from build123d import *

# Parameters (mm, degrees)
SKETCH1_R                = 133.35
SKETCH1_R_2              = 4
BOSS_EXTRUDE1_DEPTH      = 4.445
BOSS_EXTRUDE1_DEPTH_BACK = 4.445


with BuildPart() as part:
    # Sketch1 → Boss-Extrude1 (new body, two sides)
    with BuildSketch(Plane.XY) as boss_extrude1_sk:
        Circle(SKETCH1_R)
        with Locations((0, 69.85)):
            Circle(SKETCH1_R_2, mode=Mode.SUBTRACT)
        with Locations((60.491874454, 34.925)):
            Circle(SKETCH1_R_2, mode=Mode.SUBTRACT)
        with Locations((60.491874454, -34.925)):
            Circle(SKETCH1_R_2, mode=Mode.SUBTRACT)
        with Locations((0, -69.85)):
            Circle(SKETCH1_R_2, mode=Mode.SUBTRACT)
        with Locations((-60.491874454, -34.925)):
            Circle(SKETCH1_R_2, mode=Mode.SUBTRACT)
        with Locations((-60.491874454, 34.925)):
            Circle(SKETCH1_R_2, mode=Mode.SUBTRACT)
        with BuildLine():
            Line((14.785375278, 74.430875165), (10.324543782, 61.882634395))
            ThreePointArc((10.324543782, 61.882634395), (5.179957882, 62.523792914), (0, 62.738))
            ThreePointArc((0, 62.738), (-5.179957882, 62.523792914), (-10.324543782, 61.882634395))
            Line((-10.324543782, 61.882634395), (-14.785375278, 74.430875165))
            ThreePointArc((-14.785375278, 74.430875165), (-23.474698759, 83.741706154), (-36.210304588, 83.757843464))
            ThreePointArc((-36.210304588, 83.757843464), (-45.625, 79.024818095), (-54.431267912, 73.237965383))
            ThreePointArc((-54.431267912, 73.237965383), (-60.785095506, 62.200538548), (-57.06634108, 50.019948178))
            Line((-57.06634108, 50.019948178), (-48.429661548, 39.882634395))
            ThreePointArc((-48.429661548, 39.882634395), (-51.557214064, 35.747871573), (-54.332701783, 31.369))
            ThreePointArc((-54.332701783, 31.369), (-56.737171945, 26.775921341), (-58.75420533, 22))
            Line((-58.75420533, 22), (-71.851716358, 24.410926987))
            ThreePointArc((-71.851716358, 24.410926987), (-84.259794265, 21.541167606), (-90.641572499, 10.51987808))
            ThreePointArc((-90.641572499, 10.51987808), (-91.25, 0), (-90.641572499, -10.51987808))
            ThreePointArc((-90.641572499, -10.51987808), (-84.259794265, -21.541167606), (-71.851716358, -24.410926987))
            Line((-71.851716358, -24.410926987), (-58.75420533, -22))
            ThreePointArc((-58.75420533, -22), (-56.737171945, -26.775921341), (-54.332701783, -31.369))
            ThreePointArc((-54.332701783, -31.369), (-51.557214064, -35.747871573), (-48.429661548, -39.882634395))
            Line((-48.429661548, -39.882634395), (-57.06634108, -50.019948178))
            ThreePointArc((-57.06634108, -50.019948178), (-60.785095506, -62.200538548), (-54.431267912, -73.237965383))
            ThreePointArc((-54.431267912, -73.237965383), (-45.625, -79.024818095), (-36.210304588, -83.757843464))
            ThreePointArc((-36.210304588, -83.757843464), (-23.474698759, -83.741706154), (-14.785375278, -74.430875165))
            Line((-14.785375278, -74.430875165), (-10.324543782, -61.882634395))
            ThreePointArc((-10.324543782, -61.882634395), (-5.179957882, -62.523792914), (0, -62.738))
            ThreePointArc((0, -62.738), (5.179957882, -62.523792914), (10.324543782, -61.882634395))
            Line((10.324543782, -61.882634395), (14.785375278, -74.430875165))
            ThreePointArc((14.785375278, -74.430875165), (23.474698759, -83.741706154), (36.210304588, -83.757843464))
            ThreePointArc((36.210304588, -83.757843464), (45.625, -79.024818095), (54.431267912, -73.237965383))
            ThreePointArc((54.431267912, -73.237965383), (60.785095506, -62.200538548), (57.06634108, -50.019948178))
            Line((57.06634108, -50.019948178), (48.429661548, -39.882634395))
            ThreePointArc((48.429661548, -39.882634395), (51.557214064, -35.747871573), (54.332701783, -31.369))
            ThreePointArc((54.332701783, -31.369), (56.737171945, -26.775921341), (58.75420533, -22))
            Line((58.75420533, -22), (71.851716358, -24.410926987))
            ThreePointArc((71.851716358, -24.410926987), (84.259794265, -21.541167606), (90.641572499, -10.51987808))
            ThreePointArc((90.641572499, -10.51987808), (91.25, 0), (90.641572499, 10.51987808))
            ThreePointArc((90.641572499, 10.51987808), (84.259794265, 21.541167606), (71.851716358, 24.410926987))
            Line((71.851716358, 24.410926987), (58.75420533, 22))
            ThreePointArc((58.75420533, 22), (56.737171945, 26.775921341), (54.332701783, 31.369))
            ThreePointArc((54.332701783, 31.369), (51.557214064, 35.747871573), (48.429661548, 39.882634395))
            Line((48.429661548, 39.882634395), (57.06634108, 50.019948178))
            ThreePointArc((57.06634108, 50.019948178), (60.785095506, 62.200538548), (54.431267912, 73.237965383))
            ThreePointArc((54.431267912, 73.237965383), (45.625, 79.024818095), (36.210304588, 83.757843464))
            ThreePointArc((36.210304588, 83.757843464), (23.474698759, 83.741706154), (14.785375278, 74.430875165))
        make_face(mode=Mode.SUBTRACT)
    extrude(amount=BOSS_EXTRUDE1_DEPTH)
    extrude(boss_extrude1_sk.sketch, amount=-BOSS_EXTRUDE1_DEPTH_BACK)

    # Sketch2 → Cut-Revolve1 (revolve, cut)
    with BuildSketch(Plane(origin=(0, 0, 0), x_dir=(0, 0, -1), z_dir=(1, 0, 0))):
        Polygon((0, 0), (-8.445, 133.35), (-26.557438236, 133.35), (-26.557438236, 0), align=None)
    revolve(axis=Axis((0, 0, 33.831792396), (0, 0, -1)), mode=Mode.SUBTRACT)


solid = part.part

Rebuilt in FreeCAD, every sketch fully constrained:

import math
import FreeCAD as App
import Part
import Sketcher
Q = App.Units.Quantity


def add_polygon(sketch, points):
    """Adds a closed chain of lines whose ends are joined by coincident constraints."""
    first, n = sketch.GeometryCount, len(points)
    for a, b in zip(points, points[1:] + points[:1]):
        sketch.addGeometry(Part.LineSegment(App.Vector(*a, 0), App.Vector(*b, 0)), False)
    for i in range(n):
        sketch.addConstraint(Sketcher.Constraint("Coincident", first + i, 2, first + (i + 1) % n, 1))

doc = App.newDocument("Part")
params = doc.addObject("Spreadsheet::Sheet", "Params")
for row, (alias, value) in enumerate([
    ("sketch1_diameter", "10.5 in"),
    ("sketch1_radius", "2.47 in"),
    ("pad1_length", "0.175 in"),
    ("pad1_length2", "0.175 in"),
    ("sketch2_width", "5.25 in"),
    ("groove_angle", "360 deg"),
], start=1):
    params.set(f"A{row}", alias)
    params.set(f"B{row}", "=" + value)
    params.setAlias(f"B{row}", alias)

body = doc.addObject("PartDesign::Body", "Body")

sketch1 = body.newObject("Sketcher::SketchObject", "Sketch")
sketch1.AttachmentSupport = (doc.getObject("XY_Plane"), [""])
sketch1.MapMode = "FlatFace"
sketch1.addGeometry(Part.Circle(App.Vector(0, 0, 0), App.Vector(0, 0, 1), 133.3), False)
sketch1.addGeometry(Part.Circle(App.Vector(-60.5, -34.9, 0), App.Vector(0, 0, 1), 4), False)
sketch1.addGeometry(Part.Circle(App.Vector(0, -69.8, 0), App.Vector(0, 0, 1), 4), False)
sketch1.addGeometry(Part.Circle(App.Vector(60.5, -34.9, 0), App.Vector(0, 0, 1), 4), False)
sketch1.addGeometry(Part.Circle(App.Vector(-60.5, 34.9, 0), App.Vector(0, 0, 1), 4), False)
sketch1.addGeometry(Part.LineSegment(App.Vector(10.3, 61.9, 0), App.Vector(14.8, 74.4, 0)), False)
sketch1.addGeometry(Part.ArcOfCircle(Part.Circle(App.Vector(29.9, 69.1, 0), App.Vector(0, 0, 1), 16), math.radians(67), math.radians(160)), False)
sketch1.addGeometry(Part.ArcOfCircle(Part.Circle(App.Vector(0, 0, 0), App.Vector(0, 0, 1), 91.3), math.radians(53.38), math.radians(66.62)), False)
sketch1.addGeometry(Part.ArcOfCircle(Part.Circle(App.Vector(44.9, 60.4, 0), App.Vector(0, 0, 1), 16), math.radians(-40), math.radians(53)), False)
sketch1.addGeometry(Part.LineSegment(App.Vector(57.1, 50, 0), App.Vector(48.4, 39.9, 0)), False)
sketch1.addGeometry(Part.ArcOfCircle(Part.Circle(App.Vector(0, 0, 0), App.Vector(0, 0, 1), 62.7), math.radians(30), math.radians(39.47)), False)
sketch1.addGeometry(Part.ArcOfCircle(Part.Circle(App.Vector(0, 0, 0), App.Vector(0, 0, 1), 62.7), math.radians(20.53), math.radians(30)), False)
sketch1.addGeometry(Part.LineSegment(App.Vector(58.8, 22, 0), App.Vector(71.9, 24.4, 0)), False)
sketch1.addGeometry(Part.ArcOfCircle(Part.Circle(App.Vector(74.7, 8.7, 0), App.Vector(0, 0, 1), 16), math.radians(7), math.radians(100)), False)
sketch1.addGeometry(Part.ArcOfCircle(Part.Circle(App.Vector(0, 0, 0), App.Vector(0, 0, 1), 91.2), math.radians(-6.62), math.radians(6.62)), False)
sketch1.addGeometry(Part.ArcOfCircle(Part.Circle(App.Vector(74.7, -8.7, 0), App.Vector(0, 0, 1), 16), math.radians(-100), math.radians(-7)), False)
sketch1.addGeometry(Part.LineSegment(App.Vector(71.9, -24.4, 0), App.Vector(58.8, -22, 0)), False)
sketch1.addGeometry(Part.ArcOfCircle(Part.Circle(App.Vector(0, 0, 0), App.Vector(0, 0, 1), 62.7), math.radians(-30), math.radians(-20.53)), False)
sketch1.addGeometry(Part.ArcOfCircle(Part.Circle(App.Vector(0, 0, 0), App.Vector(0, 0, 1), 62.7), math.radians(-39.47), math.radians(-30)), False)
sketch1.addGeometry(Part.LineSegment(App.Vector(48.4, -39.9, 0), App.Vector(57.1, -50, 0)), False)
sketch1.addGeometry(Part.ArcOfCircle(Part.Circle(App.Vector(44.9, -60.4, 0), App.Vector(0, 0, 1), 16), math.radians(-53), math.radians(40)), False)
sketch1.addGeometry(Part.ArcOfCircle(Part.Circle(App.Vector(0, 0, 0), App.Vector(0, 0, 1), 91.3), math.radians(-66.62), math.radians(-53.38)), False)
sketch1.addGeometry(Part.ArcOfCircle(Part.Circle(App.Vector(29.9, -69.1, 0), App.Vector(0, 0, 1), 16), math.radians(-160), math.radians(-67)), False)
sketch1.addGeometry(Part.LineSegment(App.Vector(14.8, -74.4, 0), App.Vector(10.3, -61.9, 0)), False)
sketch1.addGeometry(Part.ArcOfCircle(Part.Circle(App.Vector(0, 0, 0), App.Vector(0, 0, 1), 62.7), math.radians(-90), math.radians(-80.53)), False)
sketch1.addGeometry(Part.ArcOfCircle(Part.Circle(App.Vector(0, 0, 0), App.Vector(0, 0, 1), 62.7), math.radians(-99.47), math.radians(-90)), False)
sketch1.addGeometry(Part.LineSegment(App.Vector(-10.3, -61.9, 0), App.Vector(-14.8, -74.4, 0)), False)
sketch1.addGeometry(Part.ArcOfCircle(Part.Circle(App.Vector(-29.9, -69.1, 0), App.Vector(0, 0, 1), 16), math.radians(-113), math.radians(-20)), False)
sketch1.addGeometry(Part.ArcOfCircle(Part.Circle(App.Vector(0, 0, 0), App.Vector(0, 0, 1), 91.3), math.radians(-126.62), math.radians(-113.38)), False)
sketch1.addGeometry(Part.ArcOfCircle(Part.Circle(App.Vector(-44.9, -60.4, 0), App.Vector(0, 0, 1), 16), math.radians(140), math.radians(233)), False)
sketch1.addGeometry(Part.LineSegment(App.Vector(-57.1, -50, 0), App.Vector(-48.4, -39.9, 0)), False)
sketch1.addGeometry(Part.ArcOfCircle(Part.Circle(App.Vector(0, 0, 0), App.Vector(0, 0, 1), 62.7), math.radians(-150), math.radians(-140.53)), False)
sketch1.addGeometry(Part.ArcOfCircle(Part.Circle(App.Vector(0, 0, 0), App.Vector(0, 0, 1), 62.7), math.radians(-159.47), math.radians(-150)), False)
sketch1.addGeometry(Part.LineSegment(App.Vector(-58.8, -22, 0), App.Vector(-71.9, -24.4, 0)), False)
sketch1.addGeometry(Part.ArcOfCircle(Part.Circle(App.Vector(-74.7, -8.7, 0), App.Vector(0, 0, 1), 16), math.radians(-173), math.radians(-80)), False)
sketch1.addGeometry(Part.ArcOfCircle(Part.Circle(App.Vector(0, 0, 0), App.Vector(0, 0, 1), 91.2), math.radians(173.38), math.radians(186.62)), False)
sketch1.addGeometry(Part.ArcOfCircle(Part.Circle(App.Vector(-74.7, 8.7, 0), App.Vector(0, 0, 1), 16), math.radians(80), math.radians(173)), False)
sketch1.addGeometry(Part.LineSegment(App.Vector(-71.9, 24.4, 0), App.Vector(-58.8, 22, 0)), False)
sketch1.addGeometry(Part.ArcOfCircle(Part.Circle(App.Vector(0, 0, 0), App.Vector(0, 0, 1), 62.7), math.radians(150), math.radians(159.47)), False)
sketch1.addGeometry(Part.ArcOfCircle(Part.Circle(App.Vector(0, 0, 0), App.Vector(0, 0, 1), 62.7), math.radians(140.53), math.radians(150)), False)
sketch1.addGeometry(Part.LineSegment(App.Vector(-48.4, 39.9, 0), App.Vector(-57.1, 50, 0)), False)
sketch1.addGeometry(Part.ArcOfCircle(Part.Circle(App.Vector(-44.9, 60.4, 0), App.Vector(0, 0, 1), 16), math.radians(127), math.radians(220)), False)
sketch1.addGeometry(Part.ArcOfCircle(Part.Circle(App.Vector(0, 0, 0), App.Vector(0, 0, 1), 91.3), math.radians(113.38), math.radians(126.62)), False)
sketch1.addGeometry(Part.ArcOfCircle(Part.Circle(App.Vector(-29.9, 69.1, 0), App.Vector(0, 0, 1), 16), math.radians(20), math.radians(113)), False)
sketch1.addGeometry(Part.LineSegment(App.Vector(-14.8, 74.4, 0), App.Vector(-10.3, 61.9, 0)), False)
sketch1.addGeometry(Part.ArcOfCircle(Part.Circle(App.Vector(0, 0, 0), App.Vector(0, 0, 1), 62.7), math.radians(90), math.radians(99.47)), False)
sketch1.addGeometry(Part.ArcOfCircle(Part.Circle(App.Vector(0, 0, 0), App.Vector(0, 0, 1), 62.7), math.radians(80.53), math.radians(90)), False)
sketch1.addGeometry(Part.Circle(App.Vector(60.5, 34.9, 0), App.Vector(0, 0, 1), 4), False)
sketch1.addGeometry(Part.Circle(App.Vector(0, 69.8, 0), App.Vector(0, 0, 1), 4), False)
sketch1.addConstraint(Sketcher.Constraint("Tangent", 5, 2, 6, 2))
sketch1.addConstraint(Sketcher.Constraint("Tangent", 6, 1, 7, 2))
sketch1.addConstraint(Sketcher.Constraint("Tangent", 7, 1, 8, 2))
sketch1.addConstraint(Sketcher.Constraint("Tangent", 8, 1, 9, 1))
sketch1.addConstraint(Sketcher.Constraint("Coincident", 9, 2, 10, 2))
sketch1.addConstraint(Sketcher.Constraint("Tangent", 10, 1, 11, 2))
sketch1.addConstraint(Sketcher.Constraint("Coincident", 11, 1, 12, 1))
sketch1.addConstraint(Sketcher.Constraint("Tangent", 12, 2, 13, 2))
sketch1.addConstraint(Sketcher.Constraint("Tangent", 13, 1, 14, 2))
sketch1.addConstraint(Sketcher.Constraint("Tangent", 14, 1, 15, 2))
sketch1.addConstraint(Sketcher.Constraint("Tangent", 15, 1, 16, 1))
sketch1.addConstraint(Sketcher.Constraint("Coincident", 16, 2, 17, 2))
sketch1.addConstraint(Sketcher.Constraint("Tangent", 17, 1, 18, 2))
sketch1.addConstraint(Sketcher.Constraint("Coincident", 18, 1, 19, 1))
sketch1.addConstraint(Sketcher.Constraint("Tangent", 19, 2, 20, 2))
sketch1.addConstraint(Sketcher.Constraint("Tangent", 20, 1, 21, 2))
sketch1.addConstraint(Sketcher.Constraint("Tangent", 21, 1, 22, 2))
sketch1.addConstraint(Sketcher.Constraint("Tangent", 22, 1, 23, 1))
sketch1.addConstraint(Sketcher.Constraint("Coincident", 23, 2, 24, 2))
sketch1.addConstraint(Sketcher.Constraint("Tangent", 24, 1, 25, 2))
sketch1.addConstraint(Sketcher.Constraint("Coincident", 25, 1, 26, 1))
sketch1.addConstraint(Sketcher.Constraint("Tangent", 26, 2, 27, 2))
sketch1.addConstraint(Sketcher.Constraint("Tangent", 27, 1, 28, 2))
sketch1.addConstraint(Sketcher.Constraint("Tangent", 28, 1, 29, 2))
sketch1.addConstraint(Sketcher.Constraint("Tangent", 29, 1, 30, 1))
sketch1.addConstraint(Sketcher.Constraint("Coincident", 30, 2, 31, 2))
sketch1.addConstraint(Sketcher.Constraint("Tangent", 31, 1, 32, 2))
sketch1.addConstraint(Sketcher.Constraint("Coincident", 32, 1, 33, 1))
sketch1.addConstraint(Sketcher.Constraint("Tangent", 33, 2, 34, 2))
sketch1.addConstraint(Sketcher.Constraint("Tangent", 34, 1, 35, 2))
sketch1.addConstraint(Sketcher.Constraint("Tangent", 35, 1, 36, 2))
sketch1.addConstraint(Sketcher.Constraint("Tangent", 36, 1, 37, 1))
sketch1.addConstraint(Sketcher.Constraint("Coincident", 37, 2, 38, 2))
sketch1.addConstraint(Sketcher.Constraint("Tangent", 38, 1, 39, 2))
sketch1.addConstraint(Sketcher.Constraint("Coincident", 39, 1, 40, 1))
sketch1.addConstraint(Sketcher.Constraint("Tangent", 40, 2, 41, 2))
sketch1.addConstraint(Sketcher.Constraint("Tangent", 41, 1, 42, 2))
sketch1.addConstraint(Sketcher.Constraint("Tangent", 42, 1, 43, 2))
sketch1.addConstraint(Sketcher.Constraint("Tangent", 43, 1, 44, 1))
sketch1.addConstraint(Sketcher.Constraint("Coincident", 44, 2, 45, 2))
sketch1.addConstraint(Sketcher.Constraint("Tangent", 45, 1, 46, 2))
sketch1.addConstraint(Sketcher.Constraint("Coincident", 46, 1, 5, 1))
sketch1.addConstraint(Sketcher.Constraint("Coincident", 0, 3, -1, 1))
sketch1.addConstraint(Sketcher.Constraint("Coincident", 7, 3, -1, 1))
sketch1.addConstraint(Sketcher.Constraint("Coincident", 10, 3, -1, 1))
sketch1.addConstraint(Sketcher.Constraint("Coincident", 14, 3, -1, 1))
sketch1.addConstraint(Sketcher.Constraint("Coincident", 17, 3, -1, 1))
sketch1.addConstraint(Sketcher.Constraint("Coincident", 21, 3, -1, 1))
sketch1.addConstraint(Sketcher.Constraint("Coincident", 24, 3, -1, 1))
sketch1.addConstraint(Sketcher.Constraint("Coincident", 28, 3, -1, 1))
sketch1.addConstraint(Sketcher.Constraint("Coincident", 31, 3, -1, 1))
sketch1.addConstraint(Sketcher.Constraint("Coincident", 35, 3, -1, 1))
sketch1.addConstraint(Sketcher.Constraint("Coincident", 38, 3, -1, 1))
sketch1.addConstraint(Sketcher.Constraint("Coincident", 42, 3, -1, 1))
sketch1.addConstraint(Sketcher.Constraint("Coincident", 45, 3, -1, 1))
sketch1.addConstraint(Sketcher.Constraint("Equal", 1, 2))
sketch1.addConstraint(Sketcher.Constraint("Equal", 2, 3))
sketch1.addConstraint(Sketcher.Constraint("Equal", 3, 4))
sketch1.addConstraint(Sketcher.Constraint("Equal", 6, 8))
sketch1.addConstraint(Sketcher.Constraint("Equal", 10, 11))
sketch1.addConstraint(Sketcher.Constraint("Equal", 8, 13))
sketch1.addConstraint(Sketcher.Constraint("Equal", 7, 14))
sketch1.addConstraint(Sketcher.Constraint("Equal", 13, 15))
sketch1.addConstraint(Sketcher.Constraint("Equal", 11, 17))
sketch1.addConstraint(Sketcher.Constraint("Equal", 17, 18))
sketch1.addConstraint(Sketcher.Constraint("Equal", 15, 20))
sketch1.addConstraint(Sketcher.Constraint("Equal", 14, 21))
sketch1.addConstraint(Sketcher.Constraint("Equal", 20, 22))
sketch1.addConstraint(Sketcher.Constraint("Equal", 18, 24))
sketch1.addConstraint(Sketcher.Constraint("Equal", 24, 25))
sketch1.addConstraint(Sketcher.Constraint("Equal", 22, 27))
sketch1.addConstraint(Sketcher.Constraint("Equal", 21, 28))
sketch1.addConstraint(Sketcher.Constraint("Equal", 27, 29))
sketch1.addConstraint(Sketcher.Constraint("Equal", 25, 31))
sketch1.addConstraint(Sketcher.Constraint("Equal", 31, 32))
sketch1.addConstraint(Sketcher.Constraint("Equal", 29, 34))
sketch1.addConstraint(Sketcher.Constraint("Equal", 28, 35))
sketch1.addConstraint(Sketcher.Constraint("Equal", 34, 36))
sketch1.addConstraint(Sketcher.Constraint("Equal", 32, 38))
sketch1.addConstraint(Sketcher.Constraint("Equal", 38, 39))
sketch1.addConstraint(Sketcher.Constraint("Equal", 36, 41))
sketch1.addConstraint(Sketcher.Constraint("Equal", 35, 42))
sketch1.addConstraint(Sketcher.Constraint("Equal", 41, 43))
sketch1.addConstraint(Sketcher.Constraint("Equal", 39, 45))
sketch1.addConstraint(Sketcher.Constraint("Equal", 45, 46))
sketch1.addConstraint(Sketcher.Constraint("Equal", 4, 47))
sketch1.addConstraint(Sketcher.Constraint("Equal", 47, 48))
sketch1.addConstraint(Sketcher.Constraint("Symmetric", 3, 3, 4, 3, -1, 1))
sketch1.addConstraint(Sketcher.Constraint("Symmetric", 1, 3, 47, 3, -1, 1))
sketch1.addConstraint(Sketcher.Constraint("Symmetric", 2, 3, 48, 3, -1, 1))
sketch1.addConstraint(Sketcher.Constraint("Symmetric", 5, 2, 26, 2, -1, 1))
sketch1.addConstraint(Sketcher.Constraint("Symmetric", 8, 1, 29, 1, -1, 1))
sketch1.addConstraint(Sketcher.Constraint("Symmetric", 12, 2, 33, 2, -1, 1))
sketch1.addConstraint(Sketcher.Constraint("Symmetric", 15, 1, 36, 1, -1, 1))
sketch1.addConstraint(Sketcher.Constraint("Symmetric", 19, 2, 40, 2, -1, 1))
sketch1.addConstraint(Sketcher.Constraint("Symmetric", 22, 1, 43, 1, -1, 1))
sketch1.addConstraint(Sketcher.Constraint("Symmetric", 1, 3, 3, 3, -2))
sketch1.addConstraint(Sketcher.Constraint("Symmetric", 22, 1, 26, 2, -2))
sketch1.addConstraint(Sketcher.Constraint("Symmetric", 19, 2, 29, 1, -2))
sketch1.addConstraint(Sketcher.Constraint("Symmetric", 15, 1, 33, 2, -2))
sketch1.addConstraint(Sketcher.Constraint("PointOnObject", 2, 3, -2))
sketch1.addConstraint(Sketcher.Constraint("PointOnObject", 24, 1, -2))
sketch1.addConstraint(Sketcher.Constraint("PointOnObject", 45, 1, -2))
sketch1.addConstraint(Sketcher.Constraint("Horizontal", 17, 1, 31, 1))
sketch1.addConstraint(Sketcher.Constraint("Horizontal", 10, 1, 38, 1))
sketch1.addConstraint(Sketcher.Constraint("Vertical", 10, 1, 17, 1))
sketch1.addConstraint(Sketcher.Constraint("Equal", 5, 9))
sketch1.addConstraint(Sketcher.Constraint("Equal", 9, 12))
sketch1.addConstraint(Sketcher.Constraint("Diameter", 0, Q("10.5 in")))
sketch1.addConstraint(Sketcher.Constraint("Radius", 10, Q("2.47 in")))
sketch1.addConstraint(Sketcher.Constraint("Diameter", 1, Q("8 mm")))
sketch1.addConstraint(Sketcher.Constraint("DistanceY", 2, 3, -1, 1, Q("2.75 in")))
sketch1.addConstraint(Sketcher.Constraint("Radius", 6, Q("16 mm")))
sketch1.addConstraint(Sketcher.Constraint("Radius", 7, Q("91.25 mm")))
sketch1.addConstraint(Sketcher.Constraint("DistanceY", 1, 3, -1, 1, Q("1.375 in")))
sketch1.addConstraint(Sketcher.Constraint("DistanceY", -1, 1, 10, 1, Q("1.235 in")))
sketch1.addConstraint(Sketcher.Constraint("DistanceX", -1, 1, 6, 3, Q("29.8611 mm")))
sketch1.addConstraint(Sketcher.Constraint("DistanceY", -1, 1, 11, 1, Q("22 mm")))
sketch1.addConstraint(Sketcher.Constraint("Distance", 5, Q("13.317558 mm")))
sketch1.addConstraint(Sketcher.Constraint("DistanceY", -1, 1, 8, 3, Q("60.39624 mm")))
sketch1.addConstraint(Sketcher.Constraint("DistanceX", 1, 3, -1, 1, Q("60.491874 mm")))
sketch1.setExpression("Constraints[108]", "Params.sketch1_diameter")
sketch1.setExpression("Constraints[109]", "Params.sketch1_radius")
pad1 = body.newObject("PartDesign::Pad", "Pad")
pad1.Profile = sketch1
pad1.Type = "TwoLengths"
pad1.setExpression("Length", "Params.pad1_length")
pad1.setExpression("Length2", "Params.pad1_length2")

sketch2 = body.newObject("Sketcher::SketchObject", "Sketch001")
sketch2.AttachmentSupport = (doc.getObject("YZ_Plane"), [""])
sketch2.MapMode = "FlatFace"
add_polygon(sketch2, [(0, 0), (133, 8), (133, 27), (0, 27)])
sketch2.addConstraint(Sketcher.Constraint("Vertical", 1))
sketch2.addConstraint(Sketcher.Constraint("Horizontal", 2))
sketch2.addConstraint(Sketcher.Constraint("Vertical", 3))
sketch2.addConstraint(Sketcher.Constraint("Coincident", 3, 2, -1, 1))
sketch2.addConstraint(Sketcher.Constraint("DistanceX", 2, 2, 2, 1, Q("5.25 in")))
sketch2.addConstraint(Sketcher.Constraint("DistanceY", 1, 1, 1, 2, Q("18.112438 mm")))
sketch2.addConstraint(Sketcher.Constraint("DistanceY", 3, 2, 3, 1, Q("26.557438 mm")))
sketch2.setExpression("Constraints[8]", "Params.sketch2_width")
groove = body.newObject("PartDesign::Groove", "Groove")
groove.Profile = sketch2
groove.ReferenceAxis = (sketch2, ["V_Axis"])
groove.setExpression("Angle", "Params.groove_angle")

doc.recompute()
